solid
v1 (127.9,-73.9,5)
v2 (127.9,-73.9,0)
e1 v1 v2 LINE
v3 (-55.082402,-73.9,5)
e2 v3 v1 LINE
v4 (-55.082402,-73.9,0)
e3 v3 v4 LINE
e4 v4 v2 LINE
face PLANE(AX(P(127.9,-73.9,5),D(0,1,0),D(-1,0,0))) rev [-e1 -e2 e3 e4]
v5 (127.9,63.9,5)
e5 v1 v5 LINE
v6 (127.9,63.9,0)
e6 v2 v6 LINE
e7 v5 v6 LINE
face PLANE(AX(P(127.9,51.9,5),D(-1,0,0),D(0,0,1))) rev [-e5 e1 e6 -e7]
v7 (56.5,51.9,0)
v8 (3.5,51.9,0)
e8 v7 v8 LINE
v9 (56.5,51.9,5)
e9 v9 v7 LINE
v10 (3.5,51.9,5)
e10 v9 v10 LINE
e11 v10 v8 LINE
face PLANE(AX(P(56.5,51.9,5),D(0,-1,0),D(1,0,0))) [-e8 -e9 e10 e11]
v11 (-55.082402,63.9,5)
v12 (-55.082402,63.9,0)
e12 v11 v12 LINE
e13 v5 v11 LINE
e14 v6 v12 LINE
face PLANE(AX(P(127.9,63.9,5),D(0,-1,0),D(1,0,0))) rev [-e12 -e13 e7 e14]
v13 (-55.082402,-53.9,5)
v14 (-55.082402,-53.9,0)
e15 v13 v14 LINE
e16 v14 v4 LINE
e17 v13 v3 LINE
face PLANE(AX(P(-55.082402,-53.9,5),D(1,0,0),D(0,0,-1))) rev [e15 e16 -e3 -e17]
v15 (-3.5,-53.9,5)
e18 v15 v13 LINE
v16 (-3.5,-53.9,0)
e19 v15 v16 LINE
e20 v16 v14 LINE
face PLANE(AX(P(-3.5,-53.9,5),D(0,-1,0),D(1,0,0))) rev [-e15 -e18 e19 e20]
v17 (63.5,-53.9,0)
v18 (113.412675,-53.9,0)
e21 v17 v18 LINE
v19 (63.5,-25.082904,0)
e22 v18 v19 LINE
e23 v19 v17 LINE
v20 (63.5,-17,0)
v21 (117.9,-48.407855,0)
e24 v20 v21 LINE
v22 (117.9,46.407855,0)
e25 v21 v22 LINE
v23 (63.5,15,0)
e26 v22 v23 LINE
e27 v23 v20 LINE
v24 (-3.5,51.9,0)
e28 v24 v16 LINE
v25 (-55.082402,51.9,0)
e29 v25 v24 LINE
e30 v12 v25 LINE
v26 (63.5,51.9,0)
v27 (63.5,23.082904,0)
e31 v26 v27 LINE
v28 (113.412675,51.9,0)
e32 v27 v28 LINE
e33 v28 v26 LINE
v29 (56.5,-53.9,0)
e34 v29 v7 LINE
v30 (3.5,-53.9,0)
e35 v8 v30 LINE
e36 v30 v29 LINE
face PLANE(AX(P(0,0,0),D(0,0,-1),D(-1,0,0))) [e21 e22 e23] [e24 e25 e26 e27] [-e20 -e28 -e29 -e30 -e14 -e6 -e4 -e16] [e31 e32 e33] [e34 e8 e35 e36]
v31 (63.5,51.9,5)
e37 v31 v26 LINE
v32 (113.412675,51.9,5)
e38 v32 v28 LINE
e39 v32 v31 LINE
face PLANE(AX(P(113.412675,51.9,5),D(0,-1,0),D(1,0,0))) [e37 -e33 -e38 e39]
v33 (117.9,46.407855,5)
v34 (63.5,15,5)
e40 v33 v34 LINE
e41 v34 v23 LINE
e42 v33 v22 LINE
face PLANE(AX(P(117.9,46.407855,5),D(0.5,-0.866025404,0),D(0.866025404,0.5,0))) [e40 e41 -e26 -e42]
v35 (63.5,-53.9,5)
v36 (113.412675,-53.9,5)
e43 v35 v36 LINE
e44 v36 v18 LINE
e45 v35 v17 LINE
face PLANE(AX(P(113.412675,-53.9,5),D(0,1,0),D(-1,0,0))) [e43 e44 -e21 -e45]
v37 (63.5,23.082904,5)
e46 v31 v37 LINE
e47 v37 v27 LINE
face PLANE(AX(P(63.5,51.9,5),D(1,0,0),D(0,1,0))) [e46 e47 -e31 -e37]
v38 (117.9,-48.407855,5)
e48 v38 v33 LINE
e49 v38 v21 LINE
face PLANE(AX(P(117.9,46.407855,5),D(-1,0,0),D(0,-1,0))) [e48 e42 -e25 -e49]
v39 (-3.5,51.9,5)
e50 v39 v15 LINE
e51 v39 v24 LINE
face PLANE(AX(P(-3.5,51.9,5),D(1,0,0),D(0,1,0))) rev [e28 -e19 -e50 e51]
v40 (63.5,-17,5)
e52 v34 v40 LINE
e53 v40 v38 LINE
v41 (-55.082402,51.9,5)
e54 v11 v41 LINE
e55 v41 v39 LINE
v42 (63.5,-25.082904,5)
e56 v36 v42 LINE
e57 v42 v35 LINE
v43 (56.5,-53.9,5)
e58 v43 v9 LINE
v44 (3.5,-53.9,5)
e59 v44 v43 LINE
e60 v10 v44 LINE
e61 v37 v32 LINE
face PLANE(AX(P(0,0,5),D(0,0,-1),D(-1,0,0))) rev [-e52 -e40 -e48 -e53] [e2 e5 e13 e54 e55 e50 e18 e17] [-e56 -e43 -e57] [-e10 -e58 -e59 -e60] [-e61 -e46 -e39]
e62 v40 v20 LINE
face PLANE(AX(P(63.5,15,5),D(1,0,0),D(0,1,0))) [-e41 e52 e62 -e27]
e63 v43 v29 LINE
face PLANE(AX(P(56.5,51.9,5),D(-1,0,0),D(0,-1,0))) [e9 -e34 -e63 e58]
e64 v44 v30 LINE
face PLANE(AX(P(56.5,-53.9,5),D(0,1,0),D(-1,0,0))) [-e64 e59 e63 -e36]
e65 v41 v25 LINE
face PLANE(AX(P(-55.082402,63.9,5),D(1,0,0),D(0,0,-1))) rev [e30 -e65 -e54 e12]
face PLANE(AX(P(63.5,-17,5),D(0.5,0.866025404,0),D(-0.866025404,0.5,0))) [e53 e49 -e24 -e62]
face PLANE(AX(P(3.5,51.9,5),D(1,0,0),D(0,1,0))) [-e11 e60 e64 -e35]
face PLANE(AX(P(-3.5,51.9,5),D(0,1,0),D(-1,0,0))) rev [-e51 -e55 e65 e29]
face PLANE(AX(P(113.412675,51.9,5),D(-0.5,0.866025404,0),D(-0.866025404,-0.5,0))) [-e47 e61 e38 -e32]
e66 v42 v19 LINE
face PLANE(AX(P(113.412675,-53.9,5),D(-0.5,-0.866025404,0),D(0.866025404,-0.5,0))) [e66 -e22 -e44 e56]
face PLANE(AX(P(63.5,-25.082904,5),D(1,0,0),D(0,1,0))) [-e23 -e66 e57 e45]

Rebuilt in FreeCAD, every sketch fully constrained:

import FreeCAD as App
import Part
import Sketcher
Q = App.Units.Quantity

doc = App.newDocument("Part")
body = doc.addObject("PartDesign::Body", "Body")

# Sketch on XY plane
sketch1 = body.newObject("Sketcher::SketchObject", "Sketch")
sketch1.AttachmentSupport = (doc.getObject("XY_Plane"), [""])
sketch1.MapMode = "FlatFace"
sketch1.addGeometry([
    Part.LineSegment(App.Vector(127.9, 63.9, 0), App.Vector(-55.082402, 63.9, 0)),  # 0
    Part.LineSegment(App.Vector(-55.082402, 63.9, 0), App.Vector(-55.082402, 51.9, 0)),  # 1
    Part.LineSegment(App.Vector(-55.082402, 51.9, 0), App.Vector(-3.5, 51.9, 0)),  # 2
    Part.LineSegment(App.Vector(-3.5, 51.9, 0), App.Vector(-3.5, -53.9, 0)),  # 3
    Part.LineSegment(App.Vector(-3.5, -53.9, 0), App.Vector(-55.082402, -53.9, 0)),  # 4
    Part.LineSegment(App.Vector(-55.082402, -53.9, 0), App.Vector(-55.082402, -73.9, 0)),  # 5
    Part.LineSegment(App.Vector(-55.082402, -73.9, 0), App.Vector(127.9, -73.9, 0)),  # 6
    Part.LineSegment(App.Vector(127.9, -73.9, 0), App.Vector(127.9, 63.9, 0)),  # 7
    Part.LineSegment(App.Vector(56.5, -53.9, 0), App.Vector(3.5, -53.9, 0)),  # 8
    Part.LineSegment(App.Vector(3.5, -53.9, 0), App.Vector(3.5, 51.9, 0)),  # 9
    Part.LineSegment(App.Vector(3.5, 51.9, 0), App.Vector(56.5, 51.9, 0)),  # 10
    Part.LineSegment(App.Vector(56.5, 51.9, 0), App.Vector(56.5, -53.9, 0)),  # 11
    Part.LineSegment(App.Vector(63.5, -25.082904, 0), App.Vector(113.412675, -53.9, 0)),  # 12
    Part.LineSegment(App.Vector(113.412675, -53.9, 0), App.Vector(63.5, -53.9, 0)),  # 13
    Part.LineSegment(App.Vector(63.5, -53.9, 0), App.Vector(63.5, -25.082904, 0)),  # 14
    Part.LineSegment(App.Vector(63.5, 15, 0), App.Vector(117.9, 46.407855, 0)),  # 15
    Part.LineSegment(App.Vector(117.9, 46.407855, 0), App.Vector(117.9, -48.407855, 0)),  # 16
    Part.LineSegment(App.Vector(117.9, -48.407855, 0), App.Vector(63.5, -17, 0)),  # 17
    Part.LineSegment(App.Vector(63.5, -17, 0), App.Vector(63.5, 15, 0)),  # 18
    Part.LineSegment(App.Vector(63.5, 51.9, 0), App.Vector(113.412675, 51.9, 0)),  # 19
    Part.LineSegment(App.Vector(113.412675, 51.9, 0), App.Vector(63.5, 23.082904, 0)),  # 20
    Part.LineSegment(App.Vector(63.5, 23.082904, 0), App.Vector(63.5, 51.9, 0)),  # 21
], False)
sketch1.addConstraint([
    Sketcher.Constraint("Coincident", 0, 2, 1, 1),
    Sketcher.Constraint("Coincident", 1, 2, 2, 1),
    Sketcher.Constraint("Coincident", 2, 2, 3, 1),
    Sketcher.Constraint("Coincident", 3, 2, 4, 1),
    Sketcher.Constraint("Coincident", 4, 2, 5, 1),
    Sketcher.Constraint("Coincident", 5, 2, 6, 1),
    Sketcher.Constraint("Coincident", 6, 2, 7, 1),
    Sketcher.Constraint("Coincident", 7, 2, 0, 1),
    Sketcher.Constraint("Coincident", 8, 2, 9, 1),
    Sketcher.Constraint("Coincident", 9, 2, 10, 1),
    Sketcher.Constraint("Coincident", 10, 2, 11, 1),
    Sketcher.Constraint("Coincident", 11, 2, 8, 1),
    Sketcher.Constraint("Coincident", 12, 2, 13, 1),
    Sketcher.Constraint("Coincident", 13, 2, 14, 1),
    Sketcher.Constraint("Coincident", 14, 2, 12, 1),
    Sketcher.Constraint("Coincident", 15, 2, 16, 1),
    Sketcher.Constraint("Coincident", 16, 2, 17, 1),
    Sketcher.Constraint("Coincident", 17, 2, 18, 1),
    Sketcher.Constraint("Coincident", 18, 2, 15, 1),
    Sketcher.Constraint("Coincident", 19, 2, 20, 1),
    Sketcher.Constraint("Coincident", 20, 2, 21, 1),
    Sketcher.Constraint("Coincident", 21, 2, 19, 1),
    Sketcher.Constraint("Horizontal", 0),
    Sketcher.Constraint("Vertical", 1),
    Sketcher.Constraint("Horizontal", 2),
    Sketcher.Constraint("Vertical", 3),
    Sketcher.Constraint("Horizontal", 4),
    Sketcher.Constraint("Vertical", 5),
    Sketcher.Constraint("Horizontal", 6),
    Sketcher.Constraint("Vertical", 7),
    Sketcher.Constraint("Horizontal", 8),
    Sketcher.Constraint("Vertical", 9),
    Sketcher.Constraint("Horizontal", 10),
    Sketcher.Constraint("Vertical", 11),
    Sketcher.Constraint("Horizontal", 13),
    Sketcher.Constraint("Vertical", 14),
    Sketcher.Constraint("Vertical", 16),
    Sketcher.Constraint("Vertical", 18),
    Sketcher.Constraint("Horizontal", 19),
    Sketcher.Constraint("Vertical", 21),
    Sketcher.Constraint("Symmetric", 3, 2, 8, 2, -2),
    Sketcher.Constraint("Parallel", 12, 17),
    Sketcher.Constraint("Parallel", 15, 20),
    Sketcher.Constraint("Horizontal", 2, 2, 9, 2),
    Sketcher.Constraint("Horizontal", 11, 2, 12, 2),
    Sketcher.Constraint("Horizontal", 10, 2, 19, 2),
    Sketcher.Constraint("Vertical", 1, 2, 4, 2),
    Sketcher.Constraint("Vertical", 14, 2, 17, 2),
    Sketcher.Constraint("Vertical", 12, 2, 19, 2),
    Sketcher.Constraint("Vertical", 18, 2, 20, 2),
    Sketcher.Constraint("Equal", 14, 21),
    Sketcher.Constraint("DistanceX", 8, 2, 8, 1, 53.0),
    Sketcher.Constraint("DistanceY", 1, 2, 1, 1, 12.0),
    Sketcher.Constraint("DistanceY", 5, 2, 5, 1, 20.0),
    Sketcher.Constraint("DistanceY", 18, 1, 18, 2, 32.0),
    Sketcher.Constraint("Angle", 12, Q("-30 deg")),
    Sketcher.Constraint("DistanceY", 3, 2, 3, 1, 105.8),
    Sketcher.Constraint("DistanceY", 17, 2, -1, 1, 17.0),
    Sketcher.Constraint("DistanceX", 3, 2, 8, 2, 7.0),
    Sketcher.Constraint("DistanceX", 11, 2, 13, 2, 7.0),
    Sketcher.Constraint("DistanceX", 15, 2, 7, 2, 10.0),
    Sketcher.Constraint("DistanceY", -1, 1, 0, 2, 63.9),
    Sketcher.Constraint("DistanceX", -1, 1, 6, 2, 127.9),
    Sketcher.Constraint("DistanceX", 0, 2, 0, 1, 182.982402),
    Sketcher.Constraint("DistanceX", 13, 2, 13, 1, 49.912675),
])
pad1 = body.newObject("PartDesign::Pad", "Pad")
pad1.Profile = sketch1
pad1.Length = 5

doc.recompute()
